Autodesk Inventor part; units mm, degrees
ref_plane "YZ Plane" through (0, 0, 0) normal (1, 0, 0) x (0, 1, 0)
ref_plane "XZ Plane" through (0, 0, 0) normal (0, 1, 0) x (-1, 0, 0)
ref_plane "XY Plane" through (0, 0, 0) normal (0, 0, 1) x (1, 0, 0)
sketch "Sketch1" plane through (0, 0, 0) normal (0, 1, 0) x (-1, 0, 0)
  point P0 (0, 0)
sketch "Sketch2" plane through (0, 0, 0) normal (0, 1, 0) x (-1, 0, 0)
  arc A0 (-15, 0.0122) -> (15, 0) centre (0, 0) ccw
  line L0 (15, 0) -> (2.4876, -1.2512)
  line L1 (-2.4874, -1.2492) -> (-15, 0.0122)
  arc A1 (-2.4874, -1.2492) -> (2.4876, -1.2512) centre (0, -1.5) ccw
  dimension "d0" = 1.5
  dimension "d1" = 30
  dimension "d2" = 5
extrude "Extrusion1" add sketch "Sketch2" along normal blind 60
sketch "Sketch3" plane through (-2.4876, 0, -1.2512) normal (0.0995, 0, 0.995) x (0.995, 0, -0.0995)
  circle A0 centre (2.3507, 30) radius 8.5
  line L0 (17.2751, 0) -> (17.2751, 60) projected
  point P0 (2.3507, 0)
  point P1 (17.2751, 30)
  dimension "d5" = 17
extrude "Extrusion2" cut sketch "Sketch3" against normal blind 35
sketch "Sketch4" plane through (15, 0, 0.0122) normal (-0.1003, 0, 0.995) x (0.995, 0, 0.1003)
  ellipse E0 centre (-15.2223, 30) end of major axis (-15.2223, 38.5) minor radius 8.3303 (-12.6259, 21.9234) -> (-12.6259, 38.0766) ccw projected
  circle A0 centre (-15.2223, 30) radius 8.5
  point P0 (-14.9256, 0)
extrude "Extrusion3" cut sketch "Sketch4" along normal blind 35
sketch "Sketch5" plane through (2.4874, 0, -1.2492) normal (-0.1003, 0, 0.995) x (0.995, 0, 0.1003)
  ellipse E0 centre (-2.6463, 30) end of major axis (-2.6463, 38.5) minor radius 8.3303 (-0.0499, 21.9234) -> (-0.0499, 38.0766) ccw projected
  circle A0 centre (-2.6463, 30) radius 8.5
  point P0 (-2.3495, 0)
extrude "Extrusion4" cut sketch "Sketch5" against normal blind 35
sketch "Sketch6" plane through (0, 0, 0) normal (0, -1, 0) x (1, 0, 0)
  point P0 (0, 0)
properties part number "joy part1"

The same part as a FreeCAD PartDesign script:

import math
import FreeCAD as App
import Part
import Sketcher
from FreeCAD import Vector
Q = App.Units.Quantity

doc = App.newDocument("Part")
body = doc.addObject("PartDesign::Body", "Body")

sketch1 = doc.addObject("Sketcher::SketchObject", "Sketch")
body.addObject(sketch1)
sketch1.AttachmentSupport = (doc.XZ_Plane, [""])
sketch1.MapMode = "FlatFace"
sketch1.addGeometry([
    Part.LineSegment(Vector(2.5, -1.2, 0), Vector(15, 0, 0)),
    Part.ArcOfCircle(Part.Circle(Vector(0, 0, 0), Vector(0, 0, 1), 15), math.radians(180), math.radians(360)),
    Part.LineSegment(Vector(-15, 0, 0), Vector(-2.5, -1.3, 0)),
    Part.ArcOfCircle(Part.Circle(Vector(0, -1.5, 0), Vector(0, 0, 1), 2.5), math.radians(174), math.radians(366)),
], False)
sketch1.addConstraint([
    Sketcher.Constraint("Coincident", 0, 2, 1, 2),
    Sketcher.Constraint("Coincident", 1, 1, 2, 1),
    Sketcher.Constraint("Coincident", 2, 2, 3, 1),
    Sketcher.Constraint("Coincident", 3, 2, 0, 1),
    Sketcher.Constraint("Coincident", 1, 3, -1, 1),
    Sketcher.Constraint("PointOnObject", 3, 3, -2),
    Sketcher.Constraint("PointOnObject", 1, 1, -1),
    Sketcher.Constraint("Radius", 1, Q("15 mm")),
    Sketcher.Constraint("Radius", 3, Q("2.5 mm")),
    Sketcher.Constraint("DistanceY", 3, 3, -1, 1, Q("1.5 mm")),
    Sketcher.Constraint("Angle", 2, Q("-5.7104 deg")),
    Sketcher.Constraint("Distance", 0, Q("12.576 mm")),
    Sketcher.Constraint("DistanceX", 2, 2, 3, 2, Q("4.975 mm")),
])
pad1 = doc.addObject("PartDesign::Pad", "Pad")
body.addObject(pad1)
pad1.Profile = sketch1
pad1.Length = 60
pad1.Reversed = True

sketch2 = doc.addObject("Sketcher::SketchObject", "Sketch001")
body.addObject(sketch2)
sketch2.Placement = App.Placement(Vector(-2.4876, 0, -1.2512), App.Rotation(Vector(0.99503719, 0, -0.099503719), Vector(0, 1, 0), Vector(0.099503719, 0, 0.99503719), "ZXY"))
sketch2.addGeometry(Part.Circle(Vector(2, 30, 0), Vector(0, 0, 1), 8), False)
sketch2.addConstraint([
    Sketcher.Constraint("Diameter", 0, Q("17 mm")),
    Sketcher.Constraint("DistanceY", -1, 1, 0, 3, Q("30 mm")),
    Sketcher.Constraint("DistanceX", -1, 1, 0, 3, Q("2.3507 mm")),
])
pocket1 = doc.addObject("PartDesign::Pocket", "Pocket")
body.addObject(pocket1)
pocket1.Profile = sketch2
pocket1.Length = 35

sketch3 = doc.addObject("Sketcher::SketchObject", "Sketch002")
body.addObject(sketch3)
sketch3.Placement = App.Placement(Vector(15, 0, 0.0122), App.Rotation(Vector(0.99495767, 0, 0.100295733), Vector(0, 0.999999999, 0), Vector(-0.100295733, 0, 0.99495767), "ZXY"))
sketch3.addGeometry(Part.Circle(Vector(-15, 30, 0), Vector(0, 0, 1), 8), False)
sketch3.addConstraint([
    Sketcher.Constraint("Diameter", 0, Q("17 mm")),
    Sketcher.Constraint("DistanceY", -1, 1, 0, 3, Q("30 mm")),
    Sketcher.Constraint("DistanceX", 0, 3, -1, 1, Q("15.2223 mm")),
])
pocket2 = doc.addObject("PartDesign::Pocket", "Pocket001")
body.addObject(pocket2)
pocket2.Profile = sketch3
pocket2.Length = 35
pocket2.Reversed = True

sketch4 = doc.addObject("Sketcher::SketchObject", "Sketch003")
body.addObject(sketch4)
sketch4.Placement = App.Placement(Vector(2.4874, 0, -1.2492), App.Rotation(Vector(0.99495767, 0, 0.100295733), Vector(0, 0.999999999, 0), Vector(-0.100295733, 0, 0.99495767), "ZXY"))
sketch4.addGeometry(Part.Circle(Vector(-3, 30, 0), Vector(0, 0, 1), 8), False)
sketch4.addConstraint([
    Sketcher.Constraint("Diameter", 0, Q("17 mm")),
    Sketcher.Constraint("DistanceY", -1, 1, 0, 3, Q("30 mm")),
    Sketcher.Constraint("DistanceX", 0, 3, -1, 1, Q("2.6463 mm")),
])
pocket3 = doc.addObject("PartDesign::Pocket", "Pocket002")
body.addObject(pocket3)
pocket3.Profile = sketch4
pocket3.Length = 35

doc.recompute()
